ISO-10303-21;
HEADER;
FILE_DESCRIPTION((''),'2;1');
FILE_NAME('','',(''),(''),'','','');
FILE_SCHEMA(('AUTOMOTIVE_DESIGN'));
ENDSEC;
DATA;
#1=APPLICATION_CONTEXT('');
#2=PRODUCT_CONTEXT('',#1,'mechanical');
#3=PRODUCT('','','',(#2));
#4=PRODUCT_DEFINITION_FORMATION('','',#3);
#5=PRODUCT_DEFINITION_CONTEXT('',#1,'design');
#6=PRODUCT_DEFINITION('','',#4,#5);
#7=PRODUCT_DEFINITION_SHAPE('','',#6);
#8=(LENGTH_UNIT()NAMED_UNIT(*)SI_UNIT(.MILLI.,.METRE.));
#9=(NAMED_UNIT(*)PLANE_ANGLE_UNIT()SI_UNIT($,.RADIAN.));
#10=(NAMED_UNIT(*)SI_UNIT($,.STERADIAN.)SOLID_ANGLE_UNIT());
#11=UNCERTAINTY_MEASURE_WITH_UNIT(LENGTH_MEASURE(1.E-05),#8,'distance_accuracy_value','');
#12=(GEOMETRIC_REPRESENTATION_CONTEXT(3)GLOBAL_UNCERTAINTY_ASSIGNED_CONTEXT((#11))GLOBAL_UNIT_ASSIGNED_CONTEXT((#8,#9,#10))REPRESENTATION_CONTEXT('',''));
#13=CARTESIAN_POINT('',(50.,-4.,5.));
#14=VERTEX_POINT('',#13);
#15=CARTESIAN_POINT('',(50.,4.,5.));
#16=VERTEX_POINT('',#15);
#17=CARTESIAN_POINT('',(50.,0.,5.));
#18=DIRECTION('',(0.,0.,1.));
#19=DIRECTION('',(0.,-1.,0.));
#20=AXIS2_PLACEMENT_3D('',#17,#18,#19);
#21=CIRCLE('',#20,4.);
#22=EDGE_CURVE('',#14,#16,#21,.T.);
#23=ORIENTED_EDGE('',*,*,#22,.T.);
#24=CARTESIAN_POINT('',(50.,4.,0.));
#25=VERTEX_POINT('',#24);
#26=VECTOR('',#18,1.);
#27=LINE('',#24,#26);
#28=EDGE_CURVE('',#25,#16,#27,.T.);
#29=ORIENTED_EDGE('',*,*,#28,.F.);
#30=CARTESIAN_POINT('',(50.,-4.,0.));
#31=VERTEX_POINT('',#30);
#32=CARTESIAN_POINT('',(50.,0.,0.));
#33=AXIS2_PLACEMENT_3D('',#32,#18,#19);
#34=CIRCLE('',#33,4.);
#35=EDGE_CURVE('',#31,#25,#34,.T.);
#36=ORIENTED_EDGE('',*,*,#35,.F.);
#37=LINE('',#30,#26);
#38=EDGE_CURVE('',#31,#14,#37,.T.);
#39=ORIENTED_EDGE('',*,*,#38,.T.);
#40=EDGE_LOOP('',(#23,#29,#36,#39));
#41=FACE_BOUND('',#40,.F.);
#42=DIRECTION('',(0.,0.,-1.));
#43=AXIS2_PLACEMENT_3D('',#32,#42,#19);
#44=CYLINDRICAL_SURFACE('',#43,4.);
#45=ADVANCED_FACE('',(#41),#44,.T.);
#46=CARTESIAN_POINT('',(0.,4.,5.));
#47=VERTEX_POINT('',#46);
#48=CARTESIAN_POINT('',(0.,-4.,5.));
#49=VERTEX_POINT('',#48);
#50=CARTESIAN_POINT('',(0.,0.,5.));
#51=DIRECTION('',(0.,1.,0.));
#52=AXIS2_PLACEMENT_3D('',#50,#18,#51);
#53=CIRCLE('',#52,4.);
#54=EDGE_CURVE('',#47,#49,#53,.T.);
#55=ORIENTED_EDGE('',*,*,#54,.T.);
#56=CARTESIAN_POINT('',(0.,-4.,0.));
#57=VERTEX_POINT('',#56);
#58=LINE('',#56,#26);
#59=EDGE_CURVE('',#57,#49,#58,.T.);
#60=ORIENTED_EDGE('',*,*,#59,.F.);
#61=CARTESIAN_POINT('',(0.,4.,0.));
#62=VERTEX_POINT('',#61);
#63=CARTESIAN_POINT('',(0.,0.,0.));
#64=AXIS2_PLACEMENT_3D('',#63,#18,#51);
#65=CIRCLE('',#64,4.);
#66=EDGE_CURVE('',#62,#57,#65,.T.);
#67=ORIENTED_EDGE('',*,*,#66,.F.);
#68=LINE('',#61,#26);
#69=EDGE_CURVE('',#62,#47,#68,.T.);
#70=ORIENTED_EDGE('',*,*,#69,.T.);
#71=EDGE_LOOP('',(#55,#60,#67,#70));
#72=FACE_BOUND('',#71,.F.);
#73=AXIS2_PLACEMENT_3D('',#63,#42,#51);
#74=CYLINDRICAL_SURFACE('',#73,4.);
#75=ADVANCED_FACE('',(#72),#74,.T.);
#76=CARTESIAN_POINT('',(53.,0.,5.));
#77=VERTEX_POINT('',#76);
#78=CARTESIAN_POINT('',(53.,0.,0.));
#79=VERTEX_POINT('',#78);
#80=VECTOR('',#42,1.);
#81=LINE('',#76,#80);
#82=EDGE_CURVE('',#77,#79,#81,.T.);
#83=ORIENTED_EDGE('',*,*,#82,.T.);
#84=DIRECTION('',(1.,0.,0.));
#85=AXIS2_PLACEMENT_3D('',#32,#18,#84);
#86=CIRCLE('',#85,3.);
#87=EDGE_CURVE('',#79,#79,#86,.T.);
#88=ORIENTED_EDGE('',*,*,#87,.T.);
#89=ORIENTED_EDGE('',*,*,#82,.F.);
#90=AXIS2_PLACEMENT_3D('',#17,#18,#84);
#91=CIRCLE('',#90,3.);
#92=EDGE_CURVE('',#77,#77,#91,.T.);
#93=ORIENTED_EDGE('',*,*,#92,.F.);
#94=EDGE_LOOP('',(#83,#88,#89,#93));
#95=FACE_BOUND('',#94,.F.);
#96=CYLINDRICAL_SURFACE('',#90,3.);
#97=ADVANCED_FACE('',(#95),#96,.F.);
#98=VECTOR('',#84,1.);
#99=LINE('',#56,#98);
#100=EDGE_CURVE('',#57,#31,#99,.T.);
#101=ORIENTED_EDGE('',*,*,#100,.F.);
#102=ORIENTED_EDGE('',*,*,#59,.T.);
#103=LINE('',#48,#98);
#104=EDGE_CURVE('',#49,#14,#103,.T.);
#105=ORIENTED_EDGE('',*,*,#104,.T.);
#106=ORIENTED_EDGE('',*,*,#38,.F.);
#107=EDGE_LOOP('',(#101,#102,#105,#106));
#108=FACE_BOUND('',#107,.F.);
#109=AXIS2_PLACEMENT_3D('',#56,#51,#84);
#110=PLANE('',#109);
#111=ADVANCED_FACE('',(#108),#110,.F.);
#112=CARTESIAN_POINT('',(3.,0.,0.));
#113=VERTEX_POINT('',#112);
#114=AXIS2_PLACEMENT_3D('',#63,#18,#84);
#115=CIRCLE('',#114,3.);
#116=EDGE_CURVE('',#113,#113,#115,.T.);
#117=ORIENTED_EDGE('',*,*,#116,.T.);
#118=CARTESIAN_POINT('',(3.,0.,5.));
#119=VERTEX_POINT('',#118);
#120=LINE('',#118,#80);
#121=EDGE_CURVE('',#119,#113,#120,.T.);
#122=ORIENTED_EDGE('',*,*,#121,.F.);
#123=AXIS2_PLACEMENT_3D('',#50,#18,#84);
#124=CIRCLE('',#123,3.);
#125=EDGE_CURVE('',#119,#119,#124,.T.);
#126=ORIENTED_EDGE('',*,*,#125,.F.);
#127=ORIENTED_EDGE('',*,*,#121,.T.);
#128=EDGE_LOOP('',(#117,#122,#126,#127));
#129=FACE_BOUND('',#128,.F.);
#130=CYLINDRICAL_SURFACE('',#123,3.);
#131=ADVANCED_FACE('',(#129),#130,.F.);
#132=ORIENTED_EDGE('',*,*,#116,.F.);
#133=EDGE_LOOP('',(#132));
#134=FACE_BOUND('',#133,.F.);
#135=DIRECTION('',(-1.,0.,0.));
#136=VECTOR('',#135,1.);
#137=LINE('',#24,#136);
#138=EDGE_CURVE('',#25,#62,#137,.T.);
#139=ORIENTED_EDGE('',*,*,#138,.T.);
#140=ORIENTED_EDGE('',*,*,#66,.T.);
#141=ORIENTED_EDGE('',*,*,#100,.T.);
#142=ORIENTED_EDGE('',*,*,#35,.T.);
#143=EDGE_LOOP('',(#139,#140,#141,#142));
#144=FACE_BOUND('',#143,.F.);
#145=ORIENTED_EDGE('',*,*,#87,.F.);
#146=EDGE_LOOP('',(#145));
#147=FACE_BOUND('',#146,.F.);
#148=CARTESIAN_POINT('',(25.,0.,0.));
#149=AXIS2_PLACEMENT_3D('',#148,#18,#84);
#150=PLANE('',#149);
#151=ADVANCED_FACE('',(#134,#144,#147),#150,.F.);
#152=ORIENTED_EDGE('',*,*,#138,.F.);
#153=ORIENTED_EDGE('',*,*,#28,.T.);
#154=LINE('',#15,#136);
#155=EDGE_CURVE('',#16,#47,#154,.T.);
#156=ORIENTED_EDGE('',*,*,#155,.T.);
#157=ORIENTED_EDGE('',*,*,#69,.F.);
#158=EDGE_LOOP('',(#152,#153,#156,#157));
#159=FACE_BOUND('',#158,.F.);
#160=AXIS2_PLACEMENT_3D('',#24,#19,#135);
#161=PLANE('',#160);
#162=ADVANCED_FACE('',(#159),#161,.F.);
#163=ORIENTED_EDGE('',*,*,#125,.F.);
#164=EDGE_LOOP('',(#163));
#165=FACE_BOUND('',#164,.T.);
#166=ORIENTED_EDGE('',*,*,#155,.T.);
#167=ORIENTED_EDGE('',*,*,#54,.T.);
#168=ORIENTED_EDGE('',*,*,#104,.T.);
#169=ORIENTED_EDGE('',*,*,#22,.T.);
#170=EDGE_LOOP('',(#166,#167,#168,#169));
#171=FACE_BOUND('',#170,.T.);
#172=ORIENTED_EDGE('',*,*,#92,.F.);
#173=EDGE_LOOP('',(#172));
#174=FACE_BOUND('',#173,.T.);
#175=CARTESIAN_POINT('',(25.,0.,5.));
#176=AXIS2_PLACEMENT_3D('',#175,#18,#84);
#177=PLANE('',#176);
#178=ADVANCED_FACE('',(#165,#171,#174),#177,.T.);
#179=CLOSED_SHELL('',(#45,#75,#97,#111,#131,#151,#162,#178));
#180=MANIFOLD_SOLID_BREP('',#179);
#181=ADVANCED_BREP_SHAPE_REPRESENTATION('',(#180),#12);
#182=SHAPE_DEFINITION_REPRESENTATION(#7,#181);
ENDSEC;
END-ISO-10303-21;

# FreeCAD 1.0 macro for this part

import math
import FreeCAD as App
import Part
import Sketcher

V = App.Vector

doc = App.newDocument("Part")
body = doc.addObject("PartDesign::Body", "Body")

# Sketch on XY plane
sketch1 = doc.addObject("Sketcher::SketchObject", "Sketch")
body.addObject(sketch1)
sketch1.AttachmentSupport = (doc.XY_Plane, [""])
sketch1.MapMode = "FlatFace"
sketch1.addGeometry([
    Part.ArcOfCircle(Part.Circle(V(0, 0, 0), V(0, 0, 1), 4), math.radians(90), math.radians(270)),
    Part.LineSegment(V(0, -4, 0), V(50, -4, 0)),
    Part.ArcOfCircle(Part.Circle(V(50, 0, 0), V(0, 0, 1), 4), math.radians(-90), math.radians(90)),
    Part.LineSegment(V(50, 4, 0), V(0, 4, 0)),
], False)
sketch1.addConstraint([
    Sketcher.Constraint("Tangent", 0, 2, 1, 1),
    Sketcher.Constraint("Tangent", 1, 2, 2, 1),
    Sketcher.Constraint("Tangent", 2, 2, 3, 1),
    Sketcher.Constraint("Tangent", 3, 2, 0, 1),
    Sketcher.Constraint("Horizontal", 1),
    Sketcher.Constraint("Horizontal", 3),
    Sketcher.Constraint("Coincident", 0, 3, -1, 1),
    Sketcher.Constraint("Radius", 0, 4.0),
    Sketcher.Constraint("DistanceX", 1, 1, 1, 2, 50.0),
])
pad1 = doc.addObject("PartDesign::Pad", "Pad")
body.addObject(pad1)
pad1.Profile = sketch1
pad1.Length = 5

# Sketch on XY plane
sketch2 = doc.addObject("Sketcher::SketchObject", "Sketch001")
body.addObject(sketch2)
sketch2.AttachmentSupport = (doc.XY_Plane, [""])
sketch2.MapMode = "FlatFace"
sketch2.AttachmentOffset = App.Placement(V(0, 0, 5), App.Rotation())
sketch2.addGeometry(Part.Circle(V(0, 0, 0), V(0, 0, 1), 3), False)
sketch2.addConstraint([
    Sketcher.Constraint("Coincident", 0, 3, -1, 1),
    Sketcher.Constraint("Diameter", 0, 6.0),
])
pocket1 = doc.addObject("PartDesign::Pocket", "Pocket")
body.addObject(pocket1)
pocket1.Profile = sketch2
pocket1.Type = "ThroughAll"

# Sketch on XY plane
sketch3 = doc.addObject("Sketcher::SketchObject", "Sketch002")
body.addObject(sketch3)
sketch3.AttachmentSupport = (doc.XY_Plane, [""])
sketch3.MapMode = "FlatFace"
sketch3.AttachmentOffset = App.Placement(V(0, 0, 5), App.Rotation())
sketch3.addGeometry(Part.Circle(V(50, 0, 0), V(0, 0, 1), 3), False)
sketch3.addConstraint([
    Sketcher.Constraint("PointOnObject", 0, 3, -1),
    Sketcher.Constraint("Diameter", 0, 6.0),
    Sketcher.Constraint("DistanceX", -1, 1, 0, 3, 50.0),
])
pocket2 = doc.addObject("PartDesign::Pocket", "Pocket001")
body.addObject(pocket2)
pocket2.Profile = sketch3
pocket2.Type = "ThroughAll"

doc.recompute()
